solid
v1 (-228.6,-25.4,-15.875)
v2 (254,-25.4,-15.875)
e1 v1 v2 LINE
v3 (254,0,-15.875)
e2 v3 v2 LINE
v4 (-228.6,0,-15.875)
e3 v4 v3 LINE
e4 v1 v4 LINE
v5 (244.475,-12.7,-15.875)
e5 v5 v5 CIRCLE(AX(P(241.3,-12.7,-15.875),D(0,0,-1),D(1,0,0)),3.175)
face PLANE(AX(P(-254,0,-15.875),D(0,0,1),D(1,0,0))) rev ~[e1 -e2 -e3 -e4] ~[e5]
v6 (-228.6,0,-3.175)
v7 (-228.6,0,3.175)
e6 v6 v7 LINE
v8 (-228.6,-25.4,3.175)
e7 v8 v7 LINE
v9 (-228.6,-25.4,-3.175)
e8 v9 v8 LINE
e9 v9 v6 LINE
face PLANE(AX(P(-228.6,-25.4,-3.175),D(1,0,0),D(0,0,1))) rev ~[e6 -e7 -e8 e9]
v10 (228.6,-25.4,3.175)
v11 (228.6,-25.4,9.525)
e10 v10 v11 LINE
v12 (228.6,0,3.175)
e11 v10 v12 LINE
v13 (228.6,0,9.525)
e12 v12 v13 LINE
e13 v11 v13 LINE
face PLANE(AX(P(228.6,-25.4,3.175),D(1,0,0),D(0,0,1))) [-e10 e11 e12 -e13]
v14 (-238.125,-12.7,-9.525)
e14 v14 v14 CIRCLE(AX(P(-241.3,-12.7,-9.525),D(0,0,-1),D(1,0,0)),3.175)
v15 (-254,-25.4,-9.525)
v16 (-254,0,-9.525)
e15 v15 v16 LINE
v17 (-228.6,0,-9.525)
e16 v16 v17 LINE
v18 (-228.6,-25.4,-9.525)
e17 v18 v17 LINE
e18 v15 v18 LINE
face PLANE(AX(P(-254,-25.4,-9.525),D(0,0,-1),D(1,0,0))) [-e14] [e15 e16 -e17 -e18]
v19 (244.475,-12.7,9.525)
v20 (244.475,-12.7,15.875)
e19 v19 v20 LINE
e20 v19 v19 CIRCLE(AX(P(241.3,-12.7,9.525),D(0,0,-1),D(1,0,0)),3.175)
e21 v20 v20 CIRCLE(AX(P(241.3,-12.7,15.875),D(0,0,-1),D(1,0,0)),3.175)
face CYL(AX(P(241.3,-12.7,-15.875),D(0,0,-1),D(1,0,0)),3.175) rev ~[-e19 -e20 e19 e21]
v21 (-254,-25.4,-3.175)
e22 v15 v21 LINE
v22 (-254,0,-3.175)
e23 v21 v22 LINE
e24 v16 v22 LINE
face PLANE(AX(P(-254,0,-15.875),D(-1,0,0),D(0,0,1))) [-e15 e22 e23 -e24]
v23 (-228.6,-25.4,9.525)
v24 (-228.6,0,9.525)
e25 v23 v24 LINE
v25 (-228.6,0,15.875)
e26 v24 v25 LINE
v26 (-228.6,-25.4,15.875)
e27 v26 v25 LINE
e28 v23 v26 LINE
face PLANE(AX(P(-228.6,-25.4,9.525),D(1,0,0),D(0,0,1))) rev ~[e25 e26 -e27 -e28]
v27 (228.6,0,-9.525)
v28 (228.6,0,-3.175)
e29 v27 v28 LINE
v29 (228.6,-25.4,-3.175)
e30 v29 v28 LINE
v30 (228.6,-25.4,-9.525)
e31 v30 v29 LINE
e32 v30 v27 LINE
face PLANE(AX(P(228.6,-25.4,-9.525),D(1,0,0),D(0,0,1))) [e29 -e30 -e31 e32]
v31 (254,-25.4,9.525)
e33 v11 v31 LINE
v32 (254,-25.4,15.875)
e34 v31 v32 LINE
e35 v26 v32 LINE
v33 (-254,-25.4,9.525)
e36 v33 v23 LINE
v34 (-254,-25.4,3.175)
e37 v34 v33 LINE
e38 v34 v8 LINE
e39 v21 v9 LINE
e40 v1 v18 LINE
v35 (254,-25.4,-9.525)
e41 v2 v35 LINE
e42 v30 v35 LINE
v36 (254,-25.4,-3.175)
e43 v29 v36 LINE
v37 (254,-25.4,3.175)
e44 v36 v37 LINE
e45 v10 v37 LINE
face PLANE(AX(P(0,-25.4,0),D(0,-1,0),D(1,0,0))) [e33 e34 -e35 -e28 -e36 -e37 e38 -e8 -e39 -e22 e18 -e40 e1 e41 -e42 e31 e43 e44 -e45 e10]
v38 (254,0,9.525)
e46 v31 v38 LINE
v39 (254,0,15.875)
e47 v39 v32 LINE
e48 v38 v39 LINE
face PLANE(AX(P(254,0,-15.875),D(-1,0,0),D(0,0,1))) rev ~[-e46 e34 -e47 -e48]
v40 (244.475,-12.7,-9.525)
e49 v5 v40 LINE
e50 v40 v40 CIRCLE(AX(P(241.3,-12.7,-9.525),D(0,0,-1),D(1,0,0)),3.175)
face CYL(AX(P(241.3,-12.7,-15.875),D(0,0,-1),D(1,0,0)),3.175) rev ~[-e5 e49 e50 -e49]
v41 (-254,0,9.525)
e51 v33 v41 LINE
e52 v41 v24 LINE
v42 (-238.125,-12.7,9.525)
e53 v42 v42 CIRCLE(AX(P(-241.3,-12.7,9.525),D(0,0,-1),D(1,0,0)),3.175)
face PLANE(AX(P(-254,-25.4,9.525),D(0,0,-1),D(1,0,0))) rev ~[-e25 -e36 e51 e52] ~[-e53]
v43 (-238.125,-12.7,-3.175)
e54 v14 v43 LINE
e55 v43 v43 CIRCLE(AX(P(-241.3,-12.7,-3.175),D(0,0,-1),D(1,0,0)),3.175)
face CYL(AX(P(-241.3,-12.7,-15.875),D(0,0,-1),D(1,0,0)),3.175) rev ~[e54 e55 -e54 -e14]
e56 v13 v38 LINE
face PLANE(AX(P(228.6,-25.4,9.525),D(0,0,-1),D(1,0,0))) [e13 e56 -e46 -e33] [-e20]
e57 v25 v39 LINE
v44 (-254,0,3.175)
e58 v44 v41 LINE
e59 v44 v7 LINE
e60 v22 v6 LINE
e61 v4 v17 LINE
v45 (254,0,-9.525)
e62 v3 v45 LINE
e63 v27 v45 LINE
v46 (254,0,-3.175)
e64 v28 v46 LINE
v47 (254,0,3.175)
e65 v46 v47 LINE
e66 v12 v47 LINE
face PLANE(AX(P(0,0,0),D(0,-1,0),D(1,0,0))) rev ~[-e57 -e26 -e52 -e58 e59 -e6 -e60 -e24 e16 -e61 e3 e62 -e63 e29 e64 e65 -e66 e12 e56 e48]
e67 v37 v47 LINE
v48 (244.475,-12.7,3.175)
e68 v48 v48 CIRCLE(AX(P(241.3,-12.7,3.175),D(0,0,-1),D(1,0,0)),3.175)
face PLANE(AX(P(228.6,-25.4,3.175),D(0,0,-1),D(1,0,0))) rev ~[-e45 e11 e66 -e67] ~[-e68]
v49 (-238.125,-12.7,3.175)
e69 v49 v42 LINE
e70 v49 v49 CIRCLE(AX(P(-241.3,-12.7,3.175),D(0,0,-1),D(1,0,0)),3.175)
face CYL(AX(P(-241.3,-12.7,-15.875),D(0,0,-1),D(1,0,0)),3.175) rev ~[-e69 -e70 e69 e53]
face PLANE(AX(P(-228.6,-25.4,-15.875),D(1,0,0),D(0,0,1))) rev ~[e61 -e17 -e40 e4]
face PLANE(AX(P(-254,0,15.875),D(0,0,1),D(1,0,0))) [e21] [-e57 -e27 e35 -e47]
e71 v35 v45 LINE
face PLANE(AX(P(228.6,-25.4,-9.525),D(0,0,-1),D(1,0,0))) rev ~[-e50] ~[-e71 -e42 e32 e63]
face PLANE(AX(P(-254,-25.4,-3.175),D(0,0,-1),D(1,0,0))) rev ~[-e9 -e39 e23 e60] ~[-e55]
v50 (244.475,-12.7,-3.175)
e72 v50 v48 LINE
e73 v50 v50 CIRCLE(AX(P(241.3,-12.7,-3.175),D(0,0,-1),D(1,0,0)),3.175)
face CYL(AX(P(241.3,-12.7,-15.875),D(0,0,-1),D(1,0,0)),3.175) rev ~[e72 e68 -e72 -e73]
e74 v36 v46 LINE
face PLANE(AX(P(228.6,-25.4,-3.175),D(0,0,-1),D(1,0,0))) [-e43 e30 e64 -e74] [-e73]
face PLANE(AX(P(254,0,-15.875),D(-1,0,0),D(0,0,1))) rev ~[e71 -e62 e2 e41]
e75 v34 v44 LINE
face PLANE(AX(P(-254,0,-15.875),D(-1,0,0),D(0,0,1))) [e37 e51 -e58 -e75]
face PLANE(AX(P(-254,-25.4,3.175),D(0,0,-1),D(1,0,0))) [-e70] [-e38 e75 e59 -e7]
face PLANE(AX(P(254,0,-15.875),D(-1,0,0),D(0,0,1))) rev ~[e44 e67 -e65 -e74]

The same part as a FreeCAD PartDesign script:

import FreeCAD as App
import Part
import Sketcher
from FreeCAD import Vector
Q = App.Units.Quantity

doc = App.newDocument("Part")
body = doc.addObject("PartDesign::Body", "Body")

# Sketch on XZ plane
sketch1 = doc.addObject("Sketcher::SketchObject", "Sketch")
body.addObject(sketch1)
sketch1.AttachmentSupport = (doc.XZ_Plane, [""])
sketch1.MapMode = "FlatFace"
sketch1.addGeometry(Part.LineSegment(Vector(-254, 16, 0), Vector(-254, -16, 0)), False)
sketch1.addGeometry(Part.LineSegment(Vector(-254, -16, 0), Vector(254, -16, 0)), False)
sketch1.addGeometry(Part.LineSegment(Vector(254, -16, 0), Vector(254, 16, 0)), False)
sketch1.addGeometry(Part.LineSegment(Vector(254, 16, 0), Vector(-254, 16, 0)), False)
sketch1.addConstraint(Sketcher.Constraint("Coincident", 0, 2, 1, 1))
sketch1.addConstraint(Sketcher.Constraint("Coincident", 1, 2, 2, 1))
sketch1.addConstraint(Sketcher.Constraint("Coincident", 2, 2, 3, 1))
sketch1.addConstraint(Sketcher.Constraint("Coincident", 3, 2, 0, 1))
sketch1.addConstraint(Sketcher.Constraint("Vertical", 0))
sketch1.addConstraint(Sketcher.Constraint("Horizontal", 1))
sketch1.addConstraint(Sketcher.Constraint("Vertical", 2))
sketch1.addConstraint(Sketcher.Constraint("Horizontal", 3))
sketch1.addConstraint(Sketcher.Constraint("Symmetric", 0, 2, 2, 2, -1, 1))
sketch1.addConstraint(Sketcher.Constraint("DistanceX", 1, 1, 1, 2, Q("20 in")))
sketch1.addConstraint(Sketcher.Constraint("DistanceY", 0, 2, 0, 1, Q("1.25 in")))
pad1 = doc.addObject("PartDesign::Pad", "Pad")
body.addObject(pad1)
pad1.Profile = sketch1
pad1.Length = Q("1 in")

# Sketch on XZ plane
sketch2 = doc.addObject("Sketcher::SketchObject", "Sketch001")
body.addObject(sketch2)
sketch2.AttachmentSupport = (doc.XZ_Plane, [""])
sketch2.MapMode = "FlatFace"
sketch2.AttachmentOffset = App.Placement(Vector(0, 0, 1 * 25.4), App.Rotation())
sketch2.addGeometry(Part.LineSegment(Vector(-254, 16, 0), Vector(-254, 10, 0)), False)
sketch2.addGeometry(Part.LineSegment(Vector(-254, 10, 0), Vector(-229, 10, 0)), False)
sketch2.addGeometry(Part.LineSegment(Vector(-229, 10, 0), Vector(-229, 16, 0)), False)
sketch2.addGeometry(Part.LineSegment(Vector(-229, 16, 0), Vector(-254, 16, 0)), False)
sketch2.addGeometry(Part.LineSegment(Vector(-254, 3, 0), Vector(-254, -3, 0)), False)
sketch2.addGeometry(Part.LineSegment(Vector(-254, -3, 0), Vector(-229, -3, 0)), False)
sketch2.addGeometry(Part.LineSegment(Vector(-229, -3, 0), Vector(-229, 3, 0)), False)
sketch2.addGeometry(Part.LineSegment(Vector(-229, 3, 0), Vector(-254, 3, 0)), False)
sketch2.addGeometry(Part.LineSegment(Vector(-254, -10, 0), Vector(-254, -16, 0)), False)
sketch2.addGeometry(Part.LineSegment(Vector(-254, -16, 0), Vector(-229, -16, 0)), False)
sketch2.addGeometry(Part.LineSegment(Vector(-229, -16, 0), Vector(-229, -10, 0)), False)
sketch2.addGeometry(Part.LineSegment(Vector(-229, -10, 0), Vector(-254, -10, 0)), False)
sketch2.addConstraint(Sketcher.Constraint("Coincident", 0, 2, 1, 1))
sketch2.addConstraint(Sketcher.Constraint("Coincident", 1, 2, 2, 1))
sketch2.addConstraint(Sketcher.Constraint("Coincident", 2, 2, 3, 1))
sketch2.addConstraint(Sketcher.Constraint("Coincident", 3, 2, 0, 1))
sketch2.addConstraint(Sketcher.Constraint("Coincident", 4, 2, 5, 1))
sketch2.addConstraint(Sketcher.Constraint("Coincident", 5, 2, 6, 1))
sketch2.addConstraint(Sketcher.Constraint("Coincident", 6, 2, 7, 1))
sketch2.addConstraint(Sketcher.Constraint("Coincident", 7, 2, 4, 1))
sketch2.addConstraint(Sketcher.Constraint("Coincident", 8, 2, 9, 1))
sketch2.addConstraint(Sketcher.Constraint("Coincident", 9, 2, 10, 1))
sketch2.addConstraint(Sketcher.Constraint("Coincident", 10, 2, 11, 1))
sketch2.addConstraint(Sketcher.Constraint("Coincident", 11, 2, 8, 1))
sketch2.addConstraint(Sketcher.Constraint("Vertical", 0))
sketch2.addConstraint(Sketcher.Constraint("Horizontal", 1))
sketch2.addConstraint(Sketcher.Constraint("Vertical", 2))
sketch2.addConstraint(Sketcher.Constraint("Horizontal", 3))
sketch2.addConstraint(Sketcher.Constraint("Vertical", 4))
sketch2.addConstraint(Sketcher.Constraint("Horizontal", 5))
sketch2.addConstraint(Sketcher.Constraint("Vertical", 6))
sketch2.addConstraint(Sketcher.Constraint("Horizontal", 7))
sketch2.addConstraint(Sketcher.Constraint("Vertical", 8))
sketch2.addConstraint(Sketcher.Constraint("Horizontal", 9))
sketch2.addConstraint(Sketcher.Constraint("Vertical", 10))
sketch2.addConstraint(Sketcher.Constraint("Horizontal", 11))
sketch2.addConstraint(Sketcher.Constraint("Symmetric", 3, 2, 8, 2, -1))
sketch2.addConstraint(Sketcher.Constraint("Symmetric", 1, 2, 10, 2, -1))
sketch2.addConstraint(Sketcher.Constraint("Vertical", 3, 2, 4, 2))
sketch2.addConstraint(Sketcher.Constraint("Vertical", 2, 2, 5, 2))
sketch2.addConstraint(Sketcher.Constraint("Equal", 2, 4))
sketch2.addConstraint(Sketcher.Constraint("DistanceX", 1, 1, 1, 2, Q("1 in")))
sketch2.addConstraint(Sketcher.Constraint("DistanceX", 0, 2, -1, 1, Q("10 in")))
sketch2.addConstraint(Sketcher.Constraint("DistanceY", 8, 2, 0, 2, Q("1 in")))
sketch2.addConstraint(Sketcher.Constraint("DistanceY", 0, 2, 0, 1, Q("0.25 in")))
sketch2.addConstraint(Sketcher.Constraint("DistanceY", 4, 2, 0, 2, Q("0.5 in")))
pocket1 = doc.addObject("PartDesign::Pocket", "Pocket")
body.addObject(pocket1)
pocket1.Profile = sketch2
pocket1.Type = "ThroughAll"

# Sketch on XZ plane
sketch3 = doc.addObject("Sketcher::SketchObject", "Sketch002")
body.addObject(sketch3)
sketch3.AttachmentSupport = (doc.XZ_Plane, [""])
sketch3.MapMode = "FlatFace"
sketch3.AttachmentOffset = App.Placement(Vector(0, 0, 1 * 25.4), App.Rotation())
sketch3.addGeometry(Part.LineSegment(Vector(229, 10, 0), Vector(229, 3, 0)), False)
sketch3.addGeometry(Part.LineSegment(Vector(229, 3, 0), Vector(254, 3, 0)), False)
sketch3.addGeometry(Part.LineSegment(Vector(254, 3, 0), Vector(254, 10, 0)), False)
sketch3.addGeometry(Part.LineSegment(Vector(254, 10, 0), Vector(229, 10, 0)), False)
sketch3.addGeometry(Part.LineSegment(Vector(229, -3, 0), Vector(229, -10, 0)), False)
sketch3.addGeometry(Part.LineSegment(Vector(229, -10, 0), Vector(254, -10, 0)), False)
sketch3.addGeometry(Part.LineSegment(Vector(254, -10, 0), Vector(254, -3, 0)), False)
sketch3.addGeometry(Part.LineSegment(Vector(254, -3, 0), Vector(229, -3, 0)), False)
sketch3.addConstraint(Sketcher.Constraint("Coincident", 0, 2, 1, 1))
sketch3.addConstraint(Sketcher.Constraint("Coincident", 1, 2, 2, 1))
sketch3.addConstraint(Sketcher.Constraint("Coincident", 2, 2, 3, 1))
sketch3.addConstraint(Sketcher.Constraint("Coincident", 3, 2, 0, 1))
sketch3.addConstraint(Sketcher.Constraint("Coincident", 4, 2, 5, 1))
sketch3.addConstraint(Sketcher.Constraint("Coincident", 5, 2, 6, 1))
sketch3.addConstraint(Sketcher.Constraint("Coincident", 6, 2, 7, 1))
sketch3.addConstraint(Sketcher.Constraint("Coincident", 7, 2, 4, 1))
sketch3.addConstraint(Sketcher.Constraint("Vertical", 0))
sketch3.addConstraint(Sketcher.Constraint("Horizontal", 1))
sketch3.addConstraint(Sketcher.Constraint("Vertical", 2))
sketch3.addConstraint(Sketcher.Constraint("Horizontal", 3))
sketch3.addConstraint(Sketcher.Constraint("Vertical", 4))
sketch3.addConstraint(Sketcher.Constraint("Horizontal", 5))
sketch3.addConstraint(Sketcher.Constraint("Vertical", 6))
sketch3.addConstraint(Sketcher.Constraint("Horizontal", 7))
sketch3.addConstraint(Sketcher.Constraint("Symmetric", 3, 2, 4, 2, -1))
sketch3.addConstraint(Sketcher.Constraint("Symmetric", 1, 2, 6, 2, -1))
sketch3.addConstraint(Sketcher.Constraint("DistanceX", 1, 1, 1, 2, Q("1 in")))
sketch3.addConstraint(Sketcher.Constraint("DistanceX", -1, 1, 0, 2, Q("9 in")))
sketch3.addConstraint(Sketcher.Constraint("DistanceY", 0, 2, 0, 1, Q("0.25 in")))
sketch3.addConstraint(Sketcher.Constraint("DistanceY", 4, 2, 0, 2, Q("0.5 in")))
pocket2 = doc.addObject("PartDesign::Pocket", "Pocket001")
body.addObject(pocket2)
pocket2.Profile = sketch3
pocket2.Type = "ThroughAll"

# Sketch on XY plane
sketch4 = doc.addObject("Sketcher::SketchObject", "Sketch003")
body.addObject(sketch4)
sketch4.AttachmentSupport = (doc.XY_Plane, [""])
sketch4.MapMode = "FlatFace"
sketch4.AttachmentOffset = App.Placement(Vector(0, 0, -0.625 * 25.4), App.Rotation())
sketch4.addGeometry(Part.Circle(Vector(-241.3, -12.7, 0), Vector(0, 0, 1), 3.2), False)
sketch4.addGeometry(Part.Circle(Vector(241.3, -12.7, 0), Vector(0, 0, 1), 3.2), False)
sketch4.addConstraint(Sketcher.Constraint("Equal", 0, 1))
sketch4.addConstraint(Sketcher.Constraint("Symmetric", 0, 3, 1, 3, -2))
sketch4.addConstraint(Sketcher.Constraint("Diameter", 0, Q("0.25 in")))
sketch4.addConstraint(Sketcher.Constraint("DistanceX", 0, 3, 1, 3, Q("19 in")))
sketch4.addConstraint(Sketcher.Constraint("DistanceY", 0, 3, -1, 1, Q("0.5 in")))
pocket3 = doc.addObject("PartDesign::Pocket", "Pocket002")
body.addObject(pocket3)
pocket3.Profile = sketch4
pocket3.Type = "ThroughAll"
pocket3.Reversed = True

doc.recompute()
